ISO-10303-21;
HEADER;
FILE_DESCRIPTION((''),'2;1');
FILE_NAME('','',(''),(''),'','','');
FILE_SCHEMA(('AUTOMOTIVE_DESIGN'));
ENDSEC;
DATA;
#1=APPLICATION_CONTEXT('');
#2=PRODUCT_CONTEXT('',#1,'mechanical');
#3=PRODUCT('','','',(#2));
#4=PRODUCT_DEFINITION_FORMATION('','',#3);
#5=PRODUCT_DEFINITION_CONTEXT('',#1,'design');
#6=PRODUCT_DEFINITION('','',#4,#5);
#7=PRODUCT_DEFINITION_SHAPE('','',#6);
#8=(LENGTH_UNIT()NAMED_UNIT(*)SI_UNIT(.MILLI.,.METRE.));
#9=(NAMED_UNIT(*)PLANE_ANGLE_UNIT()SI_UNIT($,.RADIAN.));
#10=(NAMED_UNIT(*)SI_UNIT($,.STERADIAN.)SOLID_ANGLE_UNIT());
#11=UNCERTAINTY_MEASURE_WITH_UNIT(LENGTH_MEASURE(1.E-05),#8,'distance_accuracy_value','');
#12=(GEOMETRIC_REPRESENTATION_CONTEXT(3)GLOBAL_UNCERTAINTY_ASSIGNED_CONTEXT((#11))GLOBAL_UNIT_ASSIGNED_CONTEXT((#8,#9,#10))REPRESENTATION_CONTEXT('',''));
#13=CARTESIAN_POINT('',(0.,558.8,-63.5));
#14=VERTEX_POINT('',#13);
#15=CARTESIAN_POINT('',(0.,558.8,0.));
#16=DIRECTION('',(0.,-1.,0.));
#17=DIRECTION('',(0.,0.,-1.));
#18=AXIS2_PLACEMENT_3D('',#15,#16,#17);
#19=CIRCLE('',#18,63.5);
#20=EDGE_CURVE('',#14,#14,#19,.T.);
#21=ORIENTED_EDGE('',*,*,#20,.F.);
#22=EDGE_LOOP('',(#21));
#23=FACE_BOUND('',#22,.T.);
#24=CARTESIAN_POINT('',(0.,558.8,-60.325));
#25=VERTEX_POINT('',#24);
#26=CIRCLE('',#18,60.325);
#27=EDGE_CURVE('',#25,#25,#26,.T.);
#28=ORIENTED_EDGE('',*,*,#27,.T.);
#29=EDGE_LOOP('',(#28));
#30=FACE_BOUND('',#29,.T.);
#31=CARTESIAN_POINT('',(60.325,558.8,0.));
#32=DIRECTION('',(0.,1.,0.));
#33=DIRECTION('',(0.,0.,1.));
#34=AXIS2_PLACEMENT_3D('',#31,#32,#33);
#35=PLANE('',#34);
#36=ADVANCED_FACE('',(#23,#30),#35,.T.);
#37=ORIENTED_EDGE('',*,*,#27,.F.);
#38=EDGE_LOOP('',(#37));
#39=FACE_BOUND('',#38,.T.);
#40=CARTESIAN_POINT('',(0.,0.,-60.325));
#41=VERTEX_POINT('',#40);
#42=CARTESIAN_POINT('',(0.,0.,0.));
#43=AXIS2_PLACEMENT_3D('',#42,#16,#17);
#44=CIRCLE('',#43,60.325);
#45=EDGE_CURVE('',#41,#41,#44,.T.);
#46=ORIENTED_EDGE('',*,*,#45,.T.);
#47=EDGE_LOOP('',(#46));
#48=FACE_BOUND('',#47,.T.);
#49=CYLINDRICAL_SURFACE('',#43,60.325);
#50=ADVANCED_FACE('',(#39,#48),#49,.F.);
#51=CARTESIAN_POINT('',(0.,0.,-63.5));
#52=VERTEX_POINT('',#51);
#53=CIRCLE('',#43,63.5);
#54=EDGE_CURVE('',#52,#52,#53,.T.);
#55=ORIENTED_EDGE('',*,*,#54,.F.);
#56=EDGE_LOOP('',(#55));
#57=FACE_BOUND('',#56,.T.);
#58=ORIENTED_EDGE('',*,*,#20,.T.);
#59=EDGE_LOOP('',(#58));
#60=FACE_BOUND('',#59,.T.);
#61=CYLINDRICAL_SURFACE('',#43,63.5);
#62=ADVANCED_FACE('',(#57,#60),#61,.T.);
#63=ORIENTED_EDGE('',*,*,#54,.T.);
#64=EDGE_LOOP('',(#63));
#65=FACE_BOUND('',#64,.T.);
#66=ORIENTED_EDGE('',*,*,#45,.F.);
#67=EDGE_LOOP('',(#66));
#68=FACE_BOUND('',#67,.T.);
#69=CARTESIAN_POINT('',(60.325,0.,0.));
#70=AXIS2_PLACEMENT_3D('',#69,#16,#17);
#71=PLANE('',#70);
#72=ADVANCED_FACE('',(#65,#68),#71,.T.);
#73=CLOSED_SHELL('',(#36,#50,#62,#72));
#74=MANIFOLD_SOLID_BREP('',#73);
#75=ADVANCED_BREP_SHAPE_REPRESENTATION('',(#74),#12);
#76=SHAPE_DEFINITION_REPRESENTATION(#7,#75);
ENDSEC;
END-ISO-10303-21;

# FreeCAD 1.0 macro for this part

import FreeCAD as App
import Part
import Sketcher
from FreeCAD import Vector
Q = App.Units.Quantity


def add_polygon(sketch, points):
    """Adds a closed chain of lines whose ends are joined by coincident constraints."""
    first, n = sketch.GeometryCount, len(points)
    for a, b in zip(points, points[1:] + points[:1]):
        sketch.addGeometry(Part.LineSegment(App.Vector(*a, 0), App.Vector(*b, 0)), False)
    for i in range(n):
        sketch.addConstraint(Sketcher.Constraint("Coincident", first + i, 2, first + (i + 1) % n, 1))

doc = App.newDocument("Part")
body = doc.addObject("PartDesign::Body", "Body")

# Sketch on XY plane
sketch1 = body.newObject("Sketcher::SketchObject", "Sketch")
sketch1.AttachmentSupport = (doc.getObject("XY_Plane"), [""])
sketch1.MapMode = "FlatFace"
add_polygon(sketch1, [(60.3, 558.8), (60.3, 0), (63.5, 0), (63.5, 558.8)])  # lines 0-3
sketch1.addConstraint([
    Sketcher.Constraint("Vertical", 0),
    Sketcher.Constraint("Horizontal", 1),
    Sketcher.Constraint("Vertical", 2),
    Sketcher.Constraint("Horizontal", 3),
    Sketcher.Constraint("PointOnObject", 0, 2, -1),
    Sketcher.Constraint("DistanceY", 0, 2, 0, 1, Q("22 in")),
    Sketcher.Constraint("DistanceX", -1, 1, 1, 2, Q("2.5 in")),
    Sketcher.Constraint("DistanceX", 1, 1, 1, 2, Q("0.125 in")),
])
revolution = body.newObject("PartDesign::Revolution", "Revolution")
revolution.Profile = sketch1
revolution.ReferenceAxis = (sketch1, ["V_Axis"])
revolution.Angle = 360

doc.recompute()
